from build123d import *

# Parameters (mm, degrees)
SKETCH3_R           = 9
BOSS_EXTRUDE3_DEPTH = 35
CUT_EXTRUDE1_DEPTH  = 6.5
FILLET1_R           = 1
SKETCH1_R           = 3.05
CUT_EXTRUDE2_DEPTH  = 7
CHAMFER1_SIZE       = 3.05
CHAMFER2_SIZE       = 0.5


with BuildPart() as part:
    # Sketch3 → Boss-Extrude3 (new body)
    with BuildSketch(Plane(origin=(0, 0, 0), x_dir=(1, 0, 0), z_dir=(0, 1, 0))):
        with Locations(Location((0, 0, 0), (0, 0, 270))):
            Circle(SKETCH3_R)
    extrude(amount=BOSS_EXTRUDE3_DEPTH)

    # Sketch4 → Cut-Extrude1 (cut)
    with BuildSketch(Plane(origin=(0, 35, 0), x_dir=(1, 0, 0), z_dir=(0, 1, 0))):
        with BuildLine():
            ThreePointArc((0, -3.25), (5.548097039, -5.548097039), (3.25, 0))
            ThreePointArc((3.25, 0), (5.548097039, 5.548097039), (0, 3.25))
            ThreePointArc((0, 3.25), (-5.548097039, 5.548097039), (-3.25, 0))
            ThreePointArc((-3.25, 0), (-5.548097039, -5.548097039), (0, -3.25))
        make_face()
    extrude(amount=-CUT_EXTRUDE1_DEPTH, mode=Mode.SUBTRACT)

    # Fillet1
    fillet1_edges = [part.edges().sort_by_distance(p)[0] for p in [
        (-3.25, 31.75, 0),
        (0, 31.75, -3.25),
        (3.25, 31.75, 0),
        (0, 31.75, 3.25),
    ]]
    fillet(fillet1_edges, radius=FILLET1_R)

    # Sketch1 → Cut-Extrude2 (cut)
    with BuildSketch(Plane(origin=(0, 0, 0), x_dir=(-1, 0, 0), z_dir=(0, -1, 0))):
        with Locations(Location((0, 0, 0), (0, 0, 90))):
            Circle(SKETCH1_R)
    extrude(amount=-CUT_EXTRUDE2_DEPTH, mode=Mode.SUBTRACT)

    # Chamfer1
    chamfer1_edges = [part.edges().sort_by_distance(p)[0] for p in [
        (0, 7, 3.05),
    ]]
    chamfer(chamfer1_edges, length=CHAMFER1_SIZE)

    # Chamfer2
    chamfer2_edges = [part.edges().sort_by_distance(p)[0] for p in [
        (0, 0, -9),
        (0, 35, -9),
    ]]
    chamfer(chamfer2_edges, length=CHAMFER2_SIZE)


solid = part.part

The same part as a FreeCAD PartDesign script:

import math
import FreeCAD as App
import Part
import Sketcher

V = App.Vector


def edges_at(feature, points):
    """Names of the edges that pass closest to the given points."""
    edges = feature.Shape.Edges
    near = lambda p: min(range(len(edges)), key=lambda i: edges[i].distToShape(Part.Vertex(*p))[0])
    return sorted({f"Edge{near(p) + 1}" for p in points})

doc = App.newDocument("Part")
body = doc.addObject("PartDesign::Body", "Body")

# Sketch on XZ plane
sketch1 = body.newObject("Sketcher::SketchObject", "Sketch")
sketch1.AttachmentSupport = (doc.getObject("XZ_Plane"), [""])
sketch1.MapMode = "FlatFace"
sketch1.addGeometry(Part.Circle(V(0, 0, 0), V(0, 0, 1), 9), False)
sketch1.addConstraint([
    Sketcher.Constraint("Coincident", 0, 3, -1, 1),
    Sketcher.Constraint("Diameter", 0, 18.0),
])
pad1 = body.newObject("PartDesign::Pad", "Pad")
pad1.Profile = sketch1
pad1.Length = 35
pad1.Reversed = True

# Sketch on XZ plane
sketch2 = body.newObject("Sketcher::SketchObject", "Sketch001")
sketch2.AttachmentSupport = (doc.getObject("XZ_Plane"), [""])
sketch2.MapMode = "FlatFace"
sketch2.AttachmentOffset = App.Placement(V(0, 0, -35), App.Rotation())
sketch2.addGeometry([
    Part.ArcOfCircle(Part.Circle(V(3.2, 3.2, 0), V(0, 0, 1), 3.2), math.radians(-90), math.radians(180)),
    Part.ArcOfCircle(Part.Circle(V(3.2, -3.2, 0), V(0, 0, 1), 3.2), math.radians(180), math.radians(450)),
    Part.ArcOfCircle(Part.Circle(V(-3.2, -3.2, 0), V(0, 0, 1), 3.2), math.radians(90), math.radians(360)),
    Part.ArcOfCircle(Part.Circle(V(-3.2, 3.2, 0), V(0, 0, 1), 3.2), math.radians(0), math.radians(270)),
], False)
sketch2.addConstraint([
    Sketcher.Constraint("Tangent", 0, 1, 1, 2),
    Sketcher.Constraint("Tangent", 1, 1, 2, 2),
    Sketcher.Constraint("Tangent", 2, 1, 3, 2),
    Sketcher.Constraint("Tangent", 3, 1, 0, 2),
    Sketcher.Constraint("Equal", 0, 1),
    Sketcher.Constraint("Equal", 1, 2),
    Sketcher.Constraint("Equal", 2, 3),
    Sketcher.Constraint("Symmetric", 0, 3, 2, 3, -1, 1),
    Sketcher.Constraint("Symmetric", 1, 3, 2, 3, -2),
    Sketcher.Constraint("Radius", 0, 3.25),
])
pocket1 = body.newObject("PartDesign::Pocket", "Pocket")
pocket1.Profile = sketch2
pocket1.Length = 6.5
pocket1.Reversed = True
doc.recompute()

fillet = body.newObject("PartDesign::Fillet", "Fillet")
fillet.Base = (pocket1, edges_at(pocket1, [
    (-3.25, 31.75, 0),
    (0, 31.75, -3.25),
    (3.25, 31.75, 0),
    (0, 31.75, 3.25),
]))
fillet.Radius = 1

# Sketch on XZ plane
sketch3 = body.newObject("Sketcher::SketchObject", "Sketch002")
sketch3.AttachmentSupport = (doc.getObject("XZ_Plane"), [""])
sketch3.MapMode = "FlatFace"
sketch3.addGeometry(Part.Circle(V(0, 0, 0), V(0, 0, 1), 3), False)
sketch3.addConstraint([
    Sketcher.Constraint("Coincident", 0, 3, -1, 1),
    Sketcher.Constraint("Diameter", 0, 6.1),
])
pocket2 = body.newObject("PartDesign::Pocket", "Pocket001")
pocket2.Profile = sketch3
pocket2.Length = 7
doc.recompute()

chamfer = body.newObject("PartDesign::Chamfer", "Chamfer")
chamfer.Base = (pocket2, edges_at(pocket2, [(0, 7, 3.05)]))
chamfer.Size = 3.05
doc.recompute()

chamfer2 = body.newObject("PartDesign::Chamfer", "Chamfer001")
chamfer2.Base = (chamfer, edges_at(chamfer, [(0, 0, -9), (0, 35, -9)]))
chamfer2.Size = 0.5

doc.recompute()
